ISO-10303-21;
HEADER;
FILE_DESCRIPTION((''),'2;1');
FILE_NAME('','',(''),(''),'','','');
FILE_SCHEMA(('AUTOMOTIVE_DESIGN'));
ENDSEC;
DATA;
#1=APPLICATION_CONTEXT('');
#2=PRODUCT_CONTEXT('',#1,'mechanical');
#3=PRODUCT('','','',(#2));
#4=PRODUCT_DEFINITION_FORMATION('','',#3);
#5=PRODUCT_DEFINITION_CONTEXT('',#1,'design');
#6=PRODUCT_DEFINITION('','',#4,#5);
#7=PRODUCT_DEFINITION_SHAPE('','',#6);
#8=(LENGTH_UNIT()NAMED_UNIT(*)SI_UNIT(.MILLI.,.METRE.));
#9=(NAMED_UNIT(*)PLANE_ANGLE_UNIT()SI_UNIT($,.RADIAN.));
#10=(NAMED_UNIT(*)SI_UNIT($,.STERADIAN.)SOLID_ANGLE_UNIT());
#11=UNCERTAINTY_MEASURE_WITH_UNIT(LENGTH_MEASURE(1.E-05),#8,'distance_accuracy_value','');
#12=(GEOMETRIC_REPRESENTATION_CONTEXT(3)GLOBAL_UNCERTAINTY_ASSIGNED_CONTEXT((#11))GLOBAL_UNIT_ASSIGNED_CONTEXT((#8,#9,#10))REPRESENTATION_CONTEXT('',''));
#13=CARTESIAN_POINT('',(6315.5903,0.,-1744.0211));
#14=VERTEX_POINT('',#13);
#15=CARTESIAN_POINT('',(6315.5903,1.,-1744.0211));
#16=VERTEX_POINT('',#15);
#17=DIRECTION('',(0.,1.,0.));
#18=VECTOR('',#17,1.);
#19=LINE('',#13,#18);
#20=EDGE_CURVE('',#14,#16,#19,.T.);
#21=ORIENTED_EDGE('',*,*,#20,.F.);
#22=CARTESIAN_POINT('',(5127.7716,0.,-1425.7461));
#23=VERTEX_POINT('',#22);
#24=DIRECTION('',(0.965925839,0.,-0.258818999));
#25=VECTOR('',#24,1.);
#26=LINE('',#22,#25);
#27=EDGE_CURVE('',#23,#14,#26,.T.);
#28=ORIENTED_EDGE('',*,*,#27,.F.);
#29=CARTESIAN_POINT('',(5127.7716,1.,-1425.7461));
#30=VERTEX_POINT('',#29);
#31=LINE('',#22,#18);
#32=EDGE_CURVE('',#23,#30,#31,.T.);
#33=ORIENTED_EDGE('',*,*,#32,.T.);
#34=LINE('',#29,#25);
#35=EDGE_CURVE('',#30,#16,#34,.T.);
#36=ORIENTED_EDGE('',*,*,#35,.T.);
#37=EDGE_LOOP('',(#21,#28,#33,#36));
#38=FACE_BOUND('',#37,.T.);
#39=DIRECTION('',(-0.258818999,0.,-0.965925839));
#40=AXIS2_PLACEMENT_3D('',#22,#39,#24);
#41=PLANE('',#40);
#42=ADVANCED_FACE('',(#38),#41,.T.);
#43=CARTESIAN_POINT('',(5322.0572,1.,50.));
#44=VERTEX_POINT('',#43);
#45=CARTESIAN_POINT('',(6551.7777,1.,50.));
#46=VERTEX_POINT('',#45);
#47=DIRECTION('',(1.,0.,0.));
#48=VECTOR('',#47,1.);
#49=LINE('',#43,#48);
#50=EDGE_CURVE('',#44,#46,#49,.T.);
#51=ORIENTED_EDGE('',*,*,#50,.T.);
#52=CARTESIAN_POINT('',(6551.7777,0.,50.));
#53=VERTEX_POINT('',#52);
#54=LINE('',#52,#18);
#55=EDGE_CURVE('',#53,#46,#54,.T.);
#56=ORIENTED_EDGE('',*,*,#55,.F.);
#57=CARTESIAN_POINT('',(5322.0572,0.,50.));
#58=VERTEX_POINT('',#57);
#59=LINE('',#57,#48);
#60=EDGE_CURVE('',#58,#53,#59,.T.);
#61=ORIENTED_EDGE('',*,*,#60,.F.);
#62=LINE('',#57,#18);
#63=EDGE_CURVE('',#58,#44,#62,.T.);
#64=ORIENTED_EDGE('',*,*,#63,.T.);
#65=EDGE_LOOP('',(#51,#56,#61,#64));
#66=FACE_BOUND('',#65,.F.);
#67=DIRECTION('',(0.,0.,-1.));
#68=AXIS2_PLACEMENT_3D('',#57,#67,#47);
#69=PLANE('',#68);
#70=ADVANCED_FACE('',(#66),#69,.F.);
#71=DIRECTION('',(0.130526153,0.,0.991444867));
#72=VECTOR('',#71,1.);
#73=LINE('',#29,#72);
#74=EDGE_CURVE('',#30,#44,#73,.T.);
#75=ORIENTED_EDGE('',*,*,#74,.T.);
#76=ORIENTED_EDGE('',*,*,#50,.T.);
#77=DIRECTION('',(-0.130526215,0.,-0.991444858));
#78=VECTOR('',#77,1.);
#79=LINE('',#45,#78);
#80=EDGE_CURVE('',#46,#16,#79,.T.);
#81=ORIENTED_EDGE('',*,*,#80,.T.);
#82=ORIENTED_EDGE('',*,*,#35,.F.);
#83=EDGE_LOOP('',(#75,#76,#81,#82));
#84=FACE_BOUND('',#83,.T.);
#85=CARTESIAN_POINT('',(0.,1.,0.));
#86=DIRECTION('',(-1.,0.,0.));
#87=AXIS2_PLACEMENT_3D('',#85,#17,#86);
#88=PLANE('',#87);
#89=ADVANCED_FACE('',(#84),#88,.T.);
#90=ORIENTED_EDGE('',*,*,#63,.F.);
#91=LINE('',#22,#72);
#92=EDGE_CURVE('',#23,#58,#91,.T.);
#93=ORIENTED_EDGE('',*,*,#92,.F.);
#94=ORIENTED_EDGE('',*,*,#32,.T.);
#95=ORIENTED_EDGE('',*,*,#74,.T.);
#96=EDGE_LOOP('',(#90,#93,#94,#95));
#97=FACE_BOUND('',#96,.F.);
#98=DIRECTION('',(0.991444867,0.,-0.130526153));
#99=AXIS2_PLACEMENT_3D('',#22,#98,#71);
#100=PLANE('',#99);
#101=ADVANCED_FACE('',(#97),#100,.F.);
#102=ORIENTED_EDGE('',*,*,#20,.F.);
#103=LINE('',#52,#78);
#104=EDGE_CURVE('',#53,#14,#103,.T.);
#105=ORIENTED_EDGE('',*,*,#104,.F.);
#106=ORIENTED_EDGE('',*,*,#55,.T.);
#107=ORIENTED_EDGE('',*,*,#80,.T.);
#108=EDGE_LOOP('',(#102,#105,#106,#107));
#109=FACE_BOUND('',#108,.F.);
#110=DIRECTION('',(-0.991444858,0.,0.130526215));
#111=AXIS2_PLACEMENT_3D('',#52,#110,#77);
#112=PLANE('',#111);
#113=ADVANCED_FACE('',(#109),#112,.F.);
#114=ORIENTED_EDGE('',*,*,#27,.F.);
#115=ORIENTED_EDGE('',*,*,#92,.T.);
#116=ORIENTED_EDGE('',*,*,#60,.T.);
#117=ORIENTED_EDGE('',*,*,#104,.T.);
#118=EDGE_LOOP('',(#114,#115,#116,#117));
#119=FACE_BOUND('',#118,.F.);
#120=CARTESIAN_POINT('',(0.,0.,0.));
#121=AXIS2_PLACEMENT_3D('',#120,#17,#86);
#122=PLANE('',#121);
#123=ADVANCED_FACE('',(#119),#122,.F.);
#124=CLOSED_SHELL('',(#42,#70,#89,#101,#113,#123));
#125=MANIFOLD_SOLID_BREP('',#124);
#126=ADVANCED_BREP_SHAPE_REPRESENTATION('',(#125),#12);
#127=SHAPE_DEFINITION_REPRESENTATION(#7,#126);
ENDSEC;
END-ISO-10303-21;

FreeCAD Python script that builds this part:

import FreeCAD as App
import Part
import Sketcher

V = App.Vector
Q = App.Units.Quantity


def add_polygon(sketch, points):
    """Adds a closed chain of lines whose ends are joined by coincident constraints."""
    first, n = sketch.GeometryCount, len(points)
    for a, b in zip(points, points[1:] + points[:1]):
        sketch.addGeometry(Part.LineSegment(App.Vector(*a, 0), App.Vector(*b, 0)), False)
    for i in range(n):
        sketch.addConstraint(Sketcher.Constraint("Coincident", first + i, 2, first + (i + 1) % n, 1))

doc = App.newDocument("Part")
body = doc.addObject("PartDesign::Body", "Body")

# Sketch on XZ plane
sketch1 = doc.addObject("Sketcher::SketchObject", "Sketch")
body.addObject(sketch1)
sketch1.AttachmentSupport = (doc.XZ_Plane, [""])
sketch1.MapMode = "FlatFace"
add_polygon(sketch1, [(5322.0572, 50), (6551.7777, 50), (6315.5903, -1744.0211), (5127.7716, -1425.7461)])  # lines 0-3
sketch1.addConstraint([
    Sketcher.Constraint("Horizontal", 0),
    Sketcher.Constraint("Parallel", 1, 3),
    Sketcher.Constraint("Angle", 2, Q("165 deg")),
    Sketcher.Constraint("DistanceY", -1, 1, 0, 2, 50.0),
    Sketcher.Constraint("Angle", 1, Q("-97.5 deg")),
    Sketcher.Constraint("DistanceX", 0, 1, 0, 2, 1229.7205),
    Sketcher.Constraint("DistanceY", 1, 2, -1, 1, 1744.021),
    Sketcher.Constraint("DistanceX", -1, 1, 0, 2, 6551.7777),
])
pad1 = doc.addObject("PartDesign::Pad", "Pad")
body.addObject(pad1)
pad1.Profile = sketch1
pad1.Length = 1
pad1.Reversed = True

doc.recompute()
